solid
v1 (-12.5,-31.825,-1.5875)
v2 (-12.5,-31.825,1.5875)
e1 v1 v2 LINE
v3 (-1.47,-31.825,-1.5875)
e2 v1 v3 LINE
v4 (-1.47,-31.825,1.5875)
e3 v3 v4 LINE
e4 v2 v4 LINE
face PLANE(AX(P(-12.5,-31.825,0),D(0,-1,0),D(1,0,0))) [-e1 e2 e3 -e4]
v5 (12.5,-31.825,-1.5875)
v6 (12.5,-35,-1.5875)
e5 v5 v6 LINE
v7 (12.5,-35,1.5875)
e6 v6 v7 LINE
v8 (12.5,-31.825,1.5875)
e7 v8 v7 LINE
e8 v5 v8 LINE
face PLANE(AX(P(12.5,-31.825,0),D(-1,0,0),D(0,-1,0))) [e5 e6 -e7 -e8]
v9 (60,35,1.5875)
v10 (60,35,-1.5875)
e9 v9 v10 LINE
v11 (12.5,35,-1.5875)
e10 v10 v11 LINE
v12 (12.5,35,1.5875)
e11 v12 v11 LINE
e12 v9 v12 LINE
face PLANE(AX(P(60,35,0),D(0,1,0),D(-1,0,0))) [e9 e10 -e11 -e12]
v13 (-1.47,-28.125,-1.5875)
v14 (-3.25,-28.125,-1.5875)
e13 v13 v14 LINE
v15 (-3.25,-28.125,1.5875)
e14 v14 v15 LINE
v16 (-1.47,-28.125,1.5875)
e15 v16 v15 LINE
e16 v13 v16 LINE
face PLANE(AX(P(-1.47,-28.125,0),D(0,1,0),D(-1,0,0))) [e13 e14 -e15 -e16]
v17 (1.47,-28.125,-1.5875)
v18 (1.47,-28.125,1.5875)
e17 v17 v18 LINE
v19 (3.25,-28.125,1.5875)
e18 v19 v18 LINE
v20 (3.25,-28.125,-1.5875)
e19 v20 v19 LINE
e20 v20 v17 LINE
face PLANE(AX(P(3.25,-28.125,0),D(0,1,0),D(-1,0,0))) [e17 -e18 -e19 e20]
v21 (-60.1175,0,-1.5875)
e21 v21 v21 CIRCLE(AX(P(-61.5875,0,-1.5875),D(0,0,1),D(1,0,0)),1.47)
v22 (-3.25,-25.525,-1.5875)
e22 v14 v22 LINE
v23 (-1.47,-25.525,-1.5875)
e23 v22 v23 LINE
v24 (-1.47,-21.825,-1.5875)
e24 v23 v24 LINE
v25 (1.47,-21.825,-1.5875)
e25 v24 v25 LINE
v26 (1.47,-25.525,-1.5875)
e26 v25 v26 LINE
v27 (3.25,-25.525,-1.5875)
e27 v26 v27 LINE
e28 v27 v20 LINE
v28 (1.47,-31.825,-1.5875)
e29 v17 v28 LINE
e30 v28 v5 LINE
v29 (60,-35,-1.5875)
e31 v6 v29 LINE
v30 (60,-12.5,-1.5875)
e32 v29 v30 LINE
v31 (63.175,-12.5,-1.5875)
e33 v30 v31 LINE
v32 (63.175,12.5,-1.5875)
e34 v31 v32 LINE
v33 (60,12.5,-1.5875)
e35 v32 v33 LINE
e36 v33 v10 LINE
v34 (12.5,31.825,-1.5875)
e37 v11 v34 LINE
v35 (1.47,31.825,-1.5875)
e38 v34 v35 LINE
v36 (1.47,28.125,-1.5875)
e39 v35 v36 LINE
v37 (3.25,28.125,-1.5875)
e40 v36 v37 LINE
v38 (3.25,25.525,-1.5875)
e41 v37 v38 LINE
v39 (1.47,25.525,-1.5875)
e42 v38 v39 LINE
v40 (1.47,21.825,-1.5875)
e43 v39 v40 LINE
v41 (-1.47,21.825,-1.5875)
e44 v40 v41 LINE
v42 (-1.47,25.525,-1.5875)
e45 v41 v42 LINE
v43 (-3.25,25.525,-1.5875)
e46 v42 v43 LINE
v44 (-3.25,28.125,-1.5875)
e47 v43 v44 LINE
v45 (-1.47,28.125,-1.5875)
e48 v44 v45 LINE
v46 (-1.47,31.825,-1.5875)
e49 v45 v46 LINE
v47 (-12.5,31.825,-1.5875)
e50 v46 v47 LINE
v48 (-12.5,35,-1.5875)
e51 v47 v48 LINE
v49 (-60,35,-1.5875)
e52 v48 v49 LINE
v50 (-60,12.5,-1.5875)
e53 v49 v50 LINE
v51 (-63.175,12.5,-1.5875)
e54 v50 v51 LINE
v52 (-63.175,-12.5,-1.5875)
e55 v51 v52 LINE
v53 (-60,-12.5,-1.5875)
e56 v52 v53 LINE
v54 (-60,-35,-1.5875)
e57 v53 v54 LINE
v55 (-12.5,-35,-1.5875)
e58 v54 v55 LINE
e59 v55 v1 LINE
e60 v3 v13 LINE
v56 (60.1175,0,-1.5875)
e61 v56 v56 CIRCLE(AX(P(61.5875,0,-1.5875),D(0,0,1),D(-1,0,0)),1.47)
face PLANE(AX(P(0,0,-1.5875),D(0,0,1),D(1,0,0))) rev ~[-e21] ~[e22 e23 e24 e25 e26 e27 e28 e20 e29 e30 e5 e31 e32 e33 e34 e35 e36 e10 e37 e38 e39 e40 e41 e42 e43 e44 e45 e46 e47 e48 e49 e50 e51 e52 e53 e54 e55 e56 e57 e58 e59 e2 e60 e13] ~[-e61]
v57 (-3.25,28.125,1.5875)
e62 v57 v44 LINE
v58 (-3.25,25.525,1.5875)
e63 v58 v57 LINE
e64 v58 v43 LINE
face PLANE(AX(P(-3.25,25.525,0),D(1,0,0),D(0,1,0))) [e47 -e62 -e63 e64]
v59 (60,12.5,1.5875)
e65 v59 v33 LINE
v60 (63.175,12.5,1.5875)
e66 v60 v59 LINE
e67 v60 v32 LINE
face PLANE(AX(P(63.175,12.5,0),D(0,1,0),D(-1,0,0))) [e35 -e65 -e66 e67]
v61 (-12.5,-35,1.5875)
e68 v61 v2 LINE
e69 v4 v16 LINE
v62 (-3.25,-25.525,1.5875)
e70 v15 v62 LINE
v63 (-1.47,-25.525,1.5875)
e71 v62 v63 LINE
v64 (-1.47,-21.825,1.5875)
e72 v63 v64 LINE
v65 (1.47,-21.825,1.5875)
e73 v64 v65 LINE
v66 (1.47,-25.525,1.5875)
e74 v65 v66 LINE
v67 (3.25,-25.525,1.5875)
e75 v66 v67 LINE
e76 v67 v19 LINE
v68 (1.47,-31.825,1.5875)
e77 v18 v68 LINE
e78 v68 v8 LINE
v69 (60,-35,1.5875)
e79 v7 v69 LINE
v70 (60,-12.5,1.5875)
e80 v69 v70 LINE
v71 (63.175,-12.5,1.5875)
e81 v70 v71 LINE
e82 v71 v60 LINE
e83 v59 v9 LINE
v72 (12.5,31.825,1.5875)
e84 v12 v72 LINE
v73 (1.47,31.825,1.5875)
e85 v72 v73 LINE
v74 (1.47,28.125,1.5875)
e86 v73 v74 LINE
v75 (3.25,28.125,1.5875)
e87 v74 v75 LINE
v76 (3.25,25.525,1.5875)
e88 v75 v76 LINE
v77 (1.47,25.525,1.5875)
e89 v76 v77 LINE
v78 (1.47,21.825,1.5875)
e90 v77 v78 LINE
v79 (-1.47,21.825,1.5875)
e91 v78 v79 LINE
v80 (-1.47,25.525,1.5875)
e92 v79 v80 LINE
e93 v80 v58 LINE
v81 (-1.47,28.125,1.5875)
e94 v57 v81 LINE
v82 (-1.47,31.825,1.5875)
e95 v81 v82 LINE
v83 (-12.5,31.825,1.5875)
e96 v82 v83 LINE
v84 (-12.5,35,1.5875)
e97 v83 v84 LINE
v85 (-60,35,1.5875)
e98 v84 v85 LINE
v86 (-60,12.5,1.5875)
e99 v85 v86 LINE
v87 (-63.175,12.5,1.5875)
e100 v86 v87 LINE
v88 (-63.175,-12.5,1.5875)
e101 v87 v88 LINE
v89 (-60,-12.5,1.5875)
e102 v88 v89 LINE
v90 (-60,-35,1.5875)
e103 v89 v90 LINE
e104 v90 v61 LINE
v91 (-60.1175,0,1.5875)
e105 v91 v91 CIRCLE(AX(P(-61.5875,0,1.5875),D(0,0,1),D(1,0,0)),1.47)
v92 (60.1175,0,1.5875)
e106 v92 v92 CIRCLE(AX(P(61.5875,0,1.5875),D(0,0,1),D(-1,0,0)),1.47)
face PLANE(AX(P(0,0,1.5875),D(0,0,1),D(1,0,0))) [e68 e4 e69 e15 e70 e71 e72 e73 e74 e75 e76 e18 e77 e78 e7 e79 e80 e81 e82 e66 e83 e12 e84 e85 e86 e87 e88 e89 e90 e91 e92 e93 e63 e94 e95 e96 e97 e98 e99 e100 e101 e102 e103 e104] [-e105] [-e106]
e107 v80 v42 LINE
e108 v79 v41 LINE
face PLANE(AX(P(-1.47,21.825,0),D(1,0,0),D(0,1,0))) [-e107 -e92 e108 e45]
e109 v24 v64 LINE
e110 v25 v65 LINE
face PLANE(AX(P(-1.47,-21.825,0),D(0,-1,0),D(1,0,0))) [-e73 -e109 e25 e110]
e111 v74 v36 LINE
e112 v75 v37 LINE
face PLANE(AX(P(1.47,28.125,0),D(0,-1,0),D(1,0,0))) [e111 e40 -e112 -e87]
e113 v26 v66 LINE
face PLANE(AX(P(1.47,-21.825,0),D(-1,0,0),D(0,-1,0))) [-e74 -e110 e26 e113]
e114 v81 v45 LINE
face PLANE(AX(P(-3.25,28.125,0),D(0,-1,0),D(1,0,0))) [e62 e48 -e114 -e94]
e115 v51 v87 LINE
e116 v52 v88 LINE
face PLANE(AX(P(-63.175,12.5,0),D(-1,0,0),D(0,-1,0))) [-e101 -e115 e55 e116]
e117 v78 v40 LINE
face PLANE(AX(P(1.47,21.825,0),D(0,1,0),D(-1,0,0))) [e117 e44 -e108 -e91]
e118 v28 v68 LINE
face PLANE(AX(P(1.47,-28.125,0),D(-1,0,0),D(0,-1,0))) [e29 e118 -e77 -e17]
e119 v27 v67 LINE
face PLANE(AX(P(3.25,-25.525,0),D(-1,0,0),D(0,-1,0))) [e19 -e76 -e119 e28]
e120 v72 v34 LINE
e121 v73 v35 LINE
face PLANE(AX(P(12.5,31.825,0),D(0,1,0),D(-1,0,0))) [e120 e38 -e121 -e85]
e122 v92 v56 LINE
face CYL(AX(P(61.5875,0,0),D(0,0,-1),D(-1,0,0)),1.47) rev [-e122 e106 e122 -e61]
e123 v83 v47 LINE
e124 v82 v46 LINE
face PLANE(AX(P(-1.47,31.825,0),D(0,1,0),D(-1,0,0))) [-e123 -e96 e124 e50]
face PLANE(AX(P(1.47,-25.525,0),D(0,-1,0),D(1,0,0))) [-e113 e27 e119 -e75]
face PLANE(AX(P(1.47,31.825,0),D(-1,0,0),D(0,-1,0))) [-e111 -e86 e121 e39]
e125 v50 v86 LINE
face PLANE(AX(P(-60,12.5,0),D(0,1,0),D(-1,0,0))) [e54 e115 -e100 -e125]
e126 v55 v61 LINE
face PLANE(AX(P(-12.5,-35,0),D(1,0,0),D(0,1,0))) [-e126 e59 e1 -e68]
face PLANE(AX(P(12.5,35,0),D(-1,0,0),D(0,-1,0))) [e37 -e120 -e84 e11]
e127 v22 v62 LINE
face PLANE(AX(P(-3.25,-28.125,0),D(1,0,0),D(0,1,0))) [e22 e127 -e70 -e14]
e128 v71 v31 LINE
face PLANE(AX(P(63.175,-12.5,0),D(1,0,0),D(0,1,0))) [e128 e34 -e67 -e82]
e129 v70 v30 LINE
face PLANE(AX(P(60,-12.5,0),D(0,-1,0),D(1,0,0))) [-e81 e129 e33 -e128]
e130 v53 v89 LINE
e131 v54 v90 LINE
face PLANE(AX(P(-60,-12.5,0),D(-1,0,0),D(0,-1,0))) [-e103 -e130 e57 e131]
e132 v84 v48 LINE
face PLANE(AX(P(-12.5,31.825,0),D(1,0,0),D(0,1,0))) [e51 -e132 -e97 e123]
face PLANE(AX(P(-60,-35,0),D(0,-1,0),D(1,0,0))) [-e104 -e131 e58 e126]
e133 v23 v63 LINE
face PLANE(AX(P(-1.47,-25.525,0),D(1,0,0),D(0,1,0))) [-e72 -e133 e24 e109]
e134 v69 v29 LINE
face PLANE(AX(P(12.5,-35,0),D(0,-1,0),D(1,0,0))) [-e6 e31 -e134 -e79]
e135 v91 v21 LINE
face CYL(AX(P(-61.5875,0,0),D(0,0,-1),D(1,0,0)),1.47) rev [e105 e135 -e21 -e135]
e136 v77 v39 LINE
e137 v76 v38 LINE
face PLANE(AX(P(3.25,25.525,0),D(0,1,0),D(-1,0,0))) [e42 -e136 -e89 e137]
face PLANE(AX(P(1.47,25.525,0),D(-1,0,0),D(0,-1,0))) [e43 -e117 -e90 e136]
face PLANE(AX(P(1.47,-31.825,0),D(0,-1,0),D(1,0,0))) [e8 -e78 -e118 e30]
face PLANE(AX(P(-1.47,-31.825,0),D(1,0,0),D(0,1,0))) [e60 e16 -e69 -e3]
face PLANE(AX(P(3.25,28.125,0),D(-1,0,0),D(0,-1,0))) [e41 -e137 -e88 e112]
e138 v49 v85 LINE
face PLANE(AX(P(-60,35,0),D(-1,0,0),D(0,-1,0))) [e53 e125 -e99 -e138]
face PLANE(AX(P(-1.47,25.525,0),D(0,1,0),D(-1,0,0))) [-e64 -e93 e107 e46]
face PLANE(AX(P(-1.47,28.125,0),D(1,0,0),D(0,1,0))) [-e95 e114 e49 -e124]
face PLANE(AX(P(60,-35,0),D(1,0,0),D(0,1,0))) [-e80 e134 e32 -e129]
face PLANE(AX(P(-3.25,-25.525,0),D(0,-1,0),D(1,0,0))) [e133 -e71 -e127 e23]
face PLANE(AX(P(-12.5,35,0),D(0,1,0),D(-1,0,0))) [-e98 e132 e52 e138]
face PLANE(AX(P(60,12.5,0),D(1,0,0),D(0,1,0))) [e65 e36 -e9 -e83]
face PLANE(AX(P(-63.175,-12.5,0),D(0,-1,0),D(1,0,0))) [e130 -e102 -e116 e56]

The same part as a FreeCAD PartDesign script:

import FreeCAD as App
import Part
import Sketcher

V = App.Vector
Q = App.Units.Quantity

doc = App.newDocument("Part")
body = doc.addObject("PartDesign::Body", "Body")

sketch1 = body.newObject("Sketcher::SketchObject", "Sketch")
sketch1.AttachmentSupport = (doc.getObject("XY_Plane"), [""])
sketch1.MapMode = "FlatFace"
sketch1.addGeometry([
    Part.LineSegment(V(-12.5, 35, 0), V(-60, 35, 0)),
    Part.LineSegment(V(-60, 35, 0), V(-60, 12.5, 0)),
    Part.LineSegment(V(-60, 12.5, 0), V(-63.175, 12.5, 0)),
    Part.LineSegment(V(-63.175, 12.5, 0), V(-63.175, -12.5, 0)),
    Part.LineSegment(V(-63.175, -12.5, 0), V(-60, -12.5, 0)),
    Part.LineSegment(V(-60, -12.5, 0), V(-60, -35, 0)),
    Part.LineSegment(V(-60, -35, 0), V(-12.5, -35, 0)),
    Part.LineSegment(V(-12.5, -35, 0), V(-12.5, -31.825, 0)),
    Part.LineSegment(V(-12.5, -31.825, 0), V(-1.47, -31.825, 0)),
    Part.LineSegment(V(-1.47, -31.825, 0), V(-1.47, -28.125, 0)),
    Part.LineSegment(V(-1.47, -28.125, 0), V(-3.25, -28.125, 0)),
    Part.LineSegment(V(-3.25, -28.125, 0), V(-3.25, -25.525, 0)),
    Part.LineSegment(V(-3.25, -25.525, 0), V(-1.47, -25.525, 0)),
    Part.LineSegment(V(-1.47, -25.525, 0), V(-1.47, -21.825, 0)),
    Part.LineSegment(V(-1.47, -21.825, 0), V(1.47, -21.825, 0)),
    Part.LineSegment(V(1.47, -21.825, 0), V(1.47, -25.525, 0)),
    Part.LineSegment(V(1.47, -25.525, 0), V(3.25, -25.525, 0)),
    Part.LineSegment(V(3.25, -25.525, 0), V(3.25, -28.125, 0)),
    Part.LineSegment(V(3.25, -28.125, 0), V(1.47, -28.125, 0)),
    Part.LineSegment(V(1.47, -28.125, 0), V(1.47, -31.825, 0)),
    Part.LineSegment(V(1.47, -31.825, 0), V(12.5, -31.825, 0)),
    Part.LineSegment(V(12.5, -31.825, 0), V(12.5, -35, 0)),
    Part.LineSegment(V(12.5, -35, 0), V(60, -35, 0)),
    Part.LineSegment(V(60, -35, 0), V(60, -12.5, 0)),
    Part.LineSegment(V(60, -12.5, 0), V(63.175, -12.5, 0)),
    Part.LineSegment(V(63.175, -12.5, 0), V(63.175, 12.5, 0)),
    Part.LineSegment(V(63.175, 12.5, 0), V(60, 12.5, 0)),
    Part.LineSegment(V(60, 12.5, 0), V(60, 35, 0)),
    Part.LineSegment(V(60, 35, 0), V(12.5, 35, 0)),
    Part.LineSegment(V(12.5, 35, 0), V(12.5, 31.825, 0)),
    Part.LineSegment(V(12.5, 31.825, 0), V(1.47, 31.825, 0)),
    Part.LineSegment(V(1.47, 31.825, 0), V(1.47, 28.125, 0)),
    Part.LineSegment(V(1.47, 28.125, 0), V(3.25, 28.125, 0)),
    Part.LineSegment(V(3.25, 28.125, 0), V(3.25, 25.525, 0)),
    Part.LineSegment(V(3.25, 25.525, 0), V(1.47, 25.525, 0)),
    Part.LineSegment(V(1.47, 25.525, 0), V(1.47, 21.825, 0)),
    Part.LineSegment(V(1.47, 21.825, 0), V(-1.47, 21.825, 0)),
    Part.LineSegment(V(-1.47, 21.825, 0), V(-1.47, 25.525, 0)),
    Part.LineSegment(V(-1.47, 25.525, 0), V(-3.25, 25.525, 0)),
    Part.LineSegment(V(-3.25, 25.525, 0), V(-3.25, 28.125, 0)),
    Part.LineSegment(V(-3.25, 28.125, 0), V(-1.47, 28.125, 0)),
    Part.LineSegment(V(-1.47, 28.125, 0), V(-1.47, 31.825, 0)),
    Part.LineSegment(V(-1.47, 31.825, 0), V(-12.5, 31.825, 0)),
    Part.LineSegment(V(-12.5, 31.825, 0), V(-12.5, 35, 0)),
    Part.Circle(V(-61.5875, 0, 0), V(0, 0, 1), 1.47),
    Part.Circle(V(61.5875, 0, 0), V(0, 0, 1), 1.47),
], False)
sketch1.addConstraint([
    Sketcher.Constraint("Coincident", 0, 2, 1, 1),
    Sketcher.Constraint("Coincident", 1, 2, 2, 1),
    Sketcher.Constraint("Coincident", 2, 2, 3, 1),
    Sketcher.Constraint("Coincident", 3, 2, 4, 1),
    Sketcher.Constraint("Coincident", 4, 2, 5, 1),
    Sketcher.Constraint("Coincident", 5, 2, 6, 1),
    Sketcher.Constraint("Coincident", 6, 2, 7, 1),
    Sketcher.Constraint("Coincident", 7, 2, 8, 1),
    Sketcher.Constraint("Coincident", 8, 2, 9, 1),
    Sketcher.Constraint("Coincident", 9, 2, 10, 1),
    Sketcher.Constraint("Coincident", 10, 2, 11, 1),
    Sketcher.Constraint("Coincident", 11, 2, 12, 1),
    Sketcher.Constraint("Coincident", 12, 2, 13, 1),
    Sketcher.Constraint("Coincident", 13, 2, 14, 1),
    Sketcher.Constraint("Coincident", 14, 2, 15, 1),
    Sketcher.Constraint("Coincident", 15, 2, 16, 1),
    Sketcher.Constraint("Coincident", 16, 2, 17, 1),
    Sketcher.Constraint("Coincident", 17, 2, 18, 1),
    Sketcher.Constraint("Coincident", 18, 2, 19, 1),
    Sketcher.Constraint("Coincident", 19, 2, 20, 1),
    Sketcher.Constraint("Coincident", 20, 2, 21, 1),
    Sketcher.Constraint("Coincident", 21, 2, 22, 1),
    Sketcher.Constraint("Coincident", 22, 2, 23, 1),
    Sketcher.Constraint("Coincident", 23, 2, 24, 1),
    Sketcher.Constraint("Coincident", 24, 2, 25, 1),
    Sketcher.Constraint("Coincident", 25, 2, 26, 1),
    Sketcher.Constraint("Coincident", 26, 2, 27, 1),
    Sketcher.Constraint("Coincident", 27, 2, 28, 1),
    Sketcher.Constraint("Coincident", 28, 2, 29, 1),
    Sketcher.Constraint("Coincident", 29, 2, 30, 1),
    Sketcher.Constraint("Coincident", 30, 2, 31, 1),
    Sketcher.Constraint("Coincident", 31, 2, 32, 1),
    Sketcher.Constraint("Coincident", 32, 2, 33, 1),
    Sketcher.Constraint("Coincident", 33, 2, 34, 1),
    Sketcher.Constraint("Coincident", 34, 2, 35, 1),
    Sketcher.Constraint("Coincident", 35, 2, 36, 1),
    Sketcher.Constraint("Coincident", 36, 2, 37, 1),
    Sketcher.Constraint("Coincident", 37, 2, 38, 1),
    Sketcher.Constraint("Coincident", 38, 2, 39, 1),
    Sketcher.Constraint("Coincident", 39, 2, 40, 1),
    Sketcher.Constraint("Coincident", 40, 2, 41, 1),
    Sketcher.Constraint("Coincident", 41, 2, 42, 1),
    Sketcher.Constraint("Coincident", 42, 2, 43, 1),
    Sketcher.Constraint("Coincident", 43, 2, 0, 1),
    Sketcher.Constraint("Horizontal", 0),
    Sketcher.Constraint("Vertical", 1),
    Sketcher.Constraint("Horizontal", 2),
    Sketcher.Constraint("Vertical", 3),
    Sketcher.Constraint("Horizontal", 4),
    Sketcher.Constraint("Vertical", 5),
    Sketcher.Constraint("Horizontal", 6),
    Sketcher.Constraint("Vertical", 7),
    Sketcher.Constraint("Horizontal", 8),
    Sketcher.Constraint("Vertical", 9),
    Sketcher.Constraint("Horizontal", 10),
    Sketcher.Constraint("Vertical", 11),
    Sketcher.Constraint("Horizontal", 12),
    Sketcher.Constraint("Vertical", 13),
    Sketcher.Constraint("Horizontal", 14),
    Sketcher.Constraint("Vertical", 15),
    Sketcher.Constraint("Horizontal", 16),
    Sketcher.Constraint("Vertical", 17),
    Sketcher.Constraint("Horizontal", 18),
    Sketcher.Constraint("Vertical", 19),
    Sketcher.Constraint("Horizontal", 20),
    Sketcher.Constraint("Vertical", 21),
    Sketcher.Constraint("Horizontal", 22),
    Sketcher.Constraint("Vertical", 23),
    Sketcher.Constraint("Horizontal", 24),
    Sketcher.Constraint("Vertical", 25),
    Sketcher.Constraint("Horizontal", 26),
    Sketcher.Constraint("Vertical", 27),
    Sketcher.Constraint("Horizontal", 28),
    Sketcher.Constraint("Vertical", 29),
    Sketcher.Constraint("Horizontal", 30),
    Sketcher.Constraint("Vertical", 31),
    Sketcher.Constraint("Horizontal", 32),
    Sketcher.Constraint("Vertical", 33),
    Sketcher.Constraint("Horizontal", 34),
    Sketcher.Constraint("Vertical", 35),
    Sketcher.Constraint("Horizontal", 36),
    Sketcher.Constraint("Vertical", 37),
    Sketcher.Constraint("Horizontal", 38),
    Sketcher.Constraint("Vertical", 39),
    Sketcher.Constraint("Horizontal", 40),
    Sketcher.Constraint("Vertical", 41),
    Sketcher.Constraint("Horizontal", 42),
    Sketcher.Constraint("Vertical", 43),
    Sketcher.Constraint("Equal", 44, 45),
    Sketcher.Constraint("Symmetric", 44, 3, 45, 3, -1, 1),
    Sketcher.Constraint("Symmetric", 0, 2, 22, 2, -1, 1),
    Sketcher.Constraint("Symmetric", 2, 2, 24, 2, -1, 1),
    Sketcher.Constraint("Symmetric", 4, 2, 26, 2, -1, 1),
    Sketcher.Constraint("Symmetric", 6, 2, 28, 2, -1, 1),
    Sketcher.Constraint("Symmetric", 8, 2, 30, 2, -1, 1),
    Sketcher.Constraint("Symmetric", 10, 2, 32, 2, -1, 1),
    Sketcher.Constraint("Symmetric", 12, 2, 34, 2, -1, 1),
    Sketcher.Constraint("Symmetric", 14, 2, 36, 2, -1, 1),
    Sketcher.Constraint("Symmetric", 16, 2, 38, 2, -1, 1),
    Sketcher.Constraint("Symmetric", 18, 2, 40, 2, -1, 1),
    Sketcher.Constraint("Symmetric", 20, 2, 42, 2, -1, 1),
    Sketcher.Constraint("Symmetric", 12, 2, 15, 2, -2),
    Sketcher.Constraint("Symmetric", 10, 2, 17, 2, -2),
    Sketcher.Constraint("Symmetric", 8, 2, 19, 2, -2),
    Sketcher.Constraint("Symmetric", 6, 2, 21, 2, -2),
    Sketcher.Constraint("Symmetric", 4, 2, 23, 2, -2),
    Sketcher.Constraint("PointOnObject", 44, 3, -1),
    Sketcher.Constraint("Vertical", 9, 2, 12, 2),
    Sketcher.Constraint("Equal", 26, 7),
    Sketcher.Constraint("Equal", 9, 13),
    Sketcher.Constraint("Diameter", 44, Q("2.94 mm")),
    Sketcher.Constraint("DistanceY", 3, 2, 3, 1, Q("25 mm")),
    Sketcher.Constraint("DistanceX", 0, 2, 0, 1, Q("47.5 mm")),
    Sketcher.Constraint("DistanceY", 1, 2, 1, 1, Q("22.5 mm")),
    Sketcher.Constraint("DistanceY", 9, 1, 9, 2, Q("3.7 mm")),
    Sketcher.Constraint("DistanceY", 11, 1, 11, 2, Q("2.6 mm")),
    Sketcher.Constraint("DistanceX", 0, 2, -1, 1, Q("60 mm")),
    Sketcher.Constraint("DistanceX", 8, 1, 8, 2, Q("11.03 mm")),
    Sketcher.Constraint("DistanceX", 10, 2, 10, 1, Q("1.78 mm")),
    Sketcher.Constraint("DistanceX", 2, 2, 2, 1, Q("3.175 mm")),
    Sketcher.Constraint("DistanceX", 44, 3, 45, 3, Q("123.175 mm")),
])
pad1 = body.newObject("PartDesign::Pad", "Pad")
pad1.Profile = sketch1
pad1.Length = 3.175
pad1.Midplane = True

doc.recompute()
